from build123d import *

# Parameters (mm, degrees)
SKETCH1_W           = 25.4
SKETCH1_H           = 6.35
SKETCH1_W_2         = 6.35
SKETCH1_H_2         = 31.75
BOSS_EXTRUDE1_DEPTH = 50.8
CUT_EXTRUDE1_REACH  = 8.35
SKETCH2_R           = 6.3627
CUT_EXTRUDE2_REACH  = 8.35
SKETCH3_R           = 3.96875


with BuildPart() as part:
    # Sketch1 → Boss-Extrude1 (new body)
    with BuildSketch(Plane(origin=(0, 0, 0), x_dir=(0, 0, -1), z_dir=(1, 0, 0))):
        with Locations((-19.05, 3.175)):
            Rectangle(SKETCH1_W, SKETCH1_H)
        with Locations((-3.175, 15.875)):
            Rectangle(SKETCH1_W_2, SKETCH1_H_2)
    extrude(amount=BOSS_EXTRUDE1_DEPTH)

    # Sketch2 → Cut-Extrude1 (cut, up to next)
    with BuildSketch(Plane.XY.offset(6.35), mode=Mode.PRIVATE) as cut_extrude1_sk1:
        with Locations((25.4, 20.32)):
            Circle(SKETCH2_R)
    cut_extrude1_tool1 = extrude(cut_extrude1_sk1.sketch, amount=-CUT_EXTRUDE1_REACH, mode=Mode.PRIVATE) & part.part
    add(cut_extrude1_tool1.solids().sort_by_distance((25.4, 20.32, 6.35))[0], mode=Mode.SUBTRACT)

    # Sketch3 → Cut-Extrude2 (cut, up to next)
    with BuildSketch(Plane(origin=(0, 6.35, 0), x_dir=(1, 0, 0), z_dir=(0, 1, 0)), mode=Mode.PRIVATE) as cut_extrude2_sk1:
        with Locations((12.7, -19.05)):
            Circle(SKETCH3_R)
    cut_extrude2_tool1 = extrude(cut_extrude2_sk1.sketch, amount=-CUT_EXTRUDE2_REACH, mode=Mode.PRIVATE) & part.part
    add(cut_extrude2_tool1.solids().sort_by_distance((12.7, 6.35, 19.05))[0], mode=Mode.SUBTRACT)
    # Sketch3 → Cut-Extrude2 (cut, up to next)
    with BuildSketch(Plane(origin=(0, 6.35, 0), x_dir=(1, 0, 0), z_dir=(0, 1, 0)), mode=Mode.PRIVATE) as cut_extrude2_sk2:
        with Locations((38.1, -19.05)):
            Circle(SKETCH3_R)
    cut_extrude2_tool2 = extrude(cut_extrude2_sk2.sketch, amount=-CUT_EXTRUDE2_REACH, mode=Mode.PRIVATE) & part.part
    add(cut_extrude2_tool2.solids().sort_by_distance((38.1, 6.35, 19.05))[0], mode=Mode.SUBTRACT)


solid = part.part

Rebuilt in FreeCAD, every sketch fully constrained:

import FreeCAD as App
import Part
import Sketcher
from FreeCAD import Vector
Q = App.Units.Quantity


def add_polygon(sketch, points):
    """Adds a closed chain of lines whose ends are joined by coincident constraints."""
    first, n = sketch.GeometryCount, len(points)
    for a, b in zip(points, points[1:] + points[:1]):
        sketch.addGeometry(Part.LineSegment(App.Vector(*a, 0), App.Vector(*b, 0)), False)
    for i in range(n):
        sketch.addConstraint(Sketcher.Constraint("Coincident", first + i, 2, first + (i + 1) % n, 1))

doc = App.newDocument("Part")
body = doc.addObject("PartDesign::Body", "Body")

# Sketch on YZ plane
sketch1 = body.newObject("Sketcher::SketchObject", "Sketch")
sketch1.AttachmentSupport = (doc.getObject("YZ_Plane"), [""])
sketch1.MapMode = "FlatFace"
add_polygon(sketch1, [(6, 32), (0, 32), (0, 0), (32, 0), (32, 6), (6, 6)])  # lines 0-5
sketch1.addConstraint(Sketcher.Constraint("Horizontal", 0))
sketch1.addConstraint(Sketcher.Constraint("Vertical", 1))
sketch1.addConstraint(Sketcher.Constraint("Horizontal", 2))
sketch1.addConstraint(Sketcher.Constraint("Vertical", 3))
sketch1.addConstraint(Sketcher.Constraint("Horizontal", 4))
sketch1.addConstraint(Sketcher.Constraint("Vertical", 5))
sketch1.addConstraint(Sketcher.Constraint("Coincident", 1, 2, -1, 1))
sketch1.addConstraint(Sketcher.Constraint("Equal", 2, 1))
sketch1.addConstraint(Sketcher.Constraint("Equal", 0, 3))
sketch1.addConstraint(Sketcher.Constraint("DistanceX", 4, 2, 4, 1, Q("1 in")))
sketch1.addConstraint(Sketcher.Constraint("DistanceX", 0, 2, 0, 1, Q("0.25 in")))
pad1 = body.newObject("PartDesign::Pad", "Pad")
pad1.Profile = sketch1
pad1.Length = Q("2 in")

# Sketch on XY plane
sketch2 = body.newObject("Sketcher::SketchObject", "Sketch001")
sketch2.AttachmentSupport = (doc.getObject("XY_Plane"), [""])
sketch2.MapMode = "FlatFace"
sketch2.AttachmentOffset = App.Placement(Vector(0, 0, 0.25 * 25.4), App.Rotation())
sketch2.addGeometry(Part.Circle(Vector(25, 20, 0), Vector(0, 0, 1), 6), False)
sketch2.addConstraint(Sketcher.Constraint("Diameter", 0, Q("0.501 in")))
sketch2.addConstraint(Sketcher.Constraint("DistanceX", -1, 1, 0, 3, Q("1 in")))
sketch2.addConstraint(Sketcher.Constraint("DistanceY", -1, 1, 0, 3, Q("0.8 in")))
pocket1 = body.newObject("PartDesign::Pocket", "Pocket")
pocket1.Profile = sketch2
pocket1.Type = "UpToFirst"

# Sketch on XZ plane
sketch3 = body.newObject("Sketcher::SketchObject", "Sketch002")
sketch3.AttachmentSupport = (doc.getObject("XZ_Plane"), [""])
sketch3.MapMode = "FlatFace"
sketch3.AttachmentOffset = App.Placement(Vector(0, 0, -0.25 * 25.4), App.Rotation())
sketch3.addGeometry(Part.Circle(Vector(12.7, 19.1, 0), Vector(0, 0, 1), 4), False)
sketch3.addConstraint(Sketcher.Constraint("Diameter", 0, Q("0.3125 in")))
sketch3.addConstraint(Sketcher.Constraint("DistanceX", -1, 1, 0, 3, Q("0.5 in")))
sketch3.addConstraint(Sketcher.Constraint("DistanceY", -1, 1, 0, 3, Q("0.75 in")))
pocket2 = body.newObject("PartDesign::Pocket", "Pocket001")
pocket2.Profile = sketch3
pocket2.Type = "UpToFirst"
pocket2.Reversed = True

# Sketch on XZ plane
sketch4 = body.newObject("Sketcher::SketchObject", "Sketch003")
sketch4.AttachmentSupport = (doc.getObject("XZ_Plane"), [""])
sketch4.MapMode = "FlatFace"
sketch4.AttachmentOffset = App.Placement(Vector(0, 0, -0.25 * 25.4), App.Rotation())
sketch4.addGeometry(Part.Circle(Vector(38.1, 19.1, 0), Vector(0, 0, 1), 4), False)
sketch4.addConstraint(Sketcher.Constraint("Diameter", 0, Q("0.3125 in")))
sketch4.addConstraint(Sketcher.Constraint("DistanceX", -1, 1, 0, 3, Q("1.5 in")))
sketch4.addConstraint(Sketcher.Constraint("DistanceY", -1, 1, 0, 3, Q("0.75 in")))
pocket3 = body.newObject("PartDesign::Pocket", "Pocket002")
pocket3.Profile = sketch4
pocket3.Type = "UpToFirst"
pocket3.Reversed = True

doc.recompute()
